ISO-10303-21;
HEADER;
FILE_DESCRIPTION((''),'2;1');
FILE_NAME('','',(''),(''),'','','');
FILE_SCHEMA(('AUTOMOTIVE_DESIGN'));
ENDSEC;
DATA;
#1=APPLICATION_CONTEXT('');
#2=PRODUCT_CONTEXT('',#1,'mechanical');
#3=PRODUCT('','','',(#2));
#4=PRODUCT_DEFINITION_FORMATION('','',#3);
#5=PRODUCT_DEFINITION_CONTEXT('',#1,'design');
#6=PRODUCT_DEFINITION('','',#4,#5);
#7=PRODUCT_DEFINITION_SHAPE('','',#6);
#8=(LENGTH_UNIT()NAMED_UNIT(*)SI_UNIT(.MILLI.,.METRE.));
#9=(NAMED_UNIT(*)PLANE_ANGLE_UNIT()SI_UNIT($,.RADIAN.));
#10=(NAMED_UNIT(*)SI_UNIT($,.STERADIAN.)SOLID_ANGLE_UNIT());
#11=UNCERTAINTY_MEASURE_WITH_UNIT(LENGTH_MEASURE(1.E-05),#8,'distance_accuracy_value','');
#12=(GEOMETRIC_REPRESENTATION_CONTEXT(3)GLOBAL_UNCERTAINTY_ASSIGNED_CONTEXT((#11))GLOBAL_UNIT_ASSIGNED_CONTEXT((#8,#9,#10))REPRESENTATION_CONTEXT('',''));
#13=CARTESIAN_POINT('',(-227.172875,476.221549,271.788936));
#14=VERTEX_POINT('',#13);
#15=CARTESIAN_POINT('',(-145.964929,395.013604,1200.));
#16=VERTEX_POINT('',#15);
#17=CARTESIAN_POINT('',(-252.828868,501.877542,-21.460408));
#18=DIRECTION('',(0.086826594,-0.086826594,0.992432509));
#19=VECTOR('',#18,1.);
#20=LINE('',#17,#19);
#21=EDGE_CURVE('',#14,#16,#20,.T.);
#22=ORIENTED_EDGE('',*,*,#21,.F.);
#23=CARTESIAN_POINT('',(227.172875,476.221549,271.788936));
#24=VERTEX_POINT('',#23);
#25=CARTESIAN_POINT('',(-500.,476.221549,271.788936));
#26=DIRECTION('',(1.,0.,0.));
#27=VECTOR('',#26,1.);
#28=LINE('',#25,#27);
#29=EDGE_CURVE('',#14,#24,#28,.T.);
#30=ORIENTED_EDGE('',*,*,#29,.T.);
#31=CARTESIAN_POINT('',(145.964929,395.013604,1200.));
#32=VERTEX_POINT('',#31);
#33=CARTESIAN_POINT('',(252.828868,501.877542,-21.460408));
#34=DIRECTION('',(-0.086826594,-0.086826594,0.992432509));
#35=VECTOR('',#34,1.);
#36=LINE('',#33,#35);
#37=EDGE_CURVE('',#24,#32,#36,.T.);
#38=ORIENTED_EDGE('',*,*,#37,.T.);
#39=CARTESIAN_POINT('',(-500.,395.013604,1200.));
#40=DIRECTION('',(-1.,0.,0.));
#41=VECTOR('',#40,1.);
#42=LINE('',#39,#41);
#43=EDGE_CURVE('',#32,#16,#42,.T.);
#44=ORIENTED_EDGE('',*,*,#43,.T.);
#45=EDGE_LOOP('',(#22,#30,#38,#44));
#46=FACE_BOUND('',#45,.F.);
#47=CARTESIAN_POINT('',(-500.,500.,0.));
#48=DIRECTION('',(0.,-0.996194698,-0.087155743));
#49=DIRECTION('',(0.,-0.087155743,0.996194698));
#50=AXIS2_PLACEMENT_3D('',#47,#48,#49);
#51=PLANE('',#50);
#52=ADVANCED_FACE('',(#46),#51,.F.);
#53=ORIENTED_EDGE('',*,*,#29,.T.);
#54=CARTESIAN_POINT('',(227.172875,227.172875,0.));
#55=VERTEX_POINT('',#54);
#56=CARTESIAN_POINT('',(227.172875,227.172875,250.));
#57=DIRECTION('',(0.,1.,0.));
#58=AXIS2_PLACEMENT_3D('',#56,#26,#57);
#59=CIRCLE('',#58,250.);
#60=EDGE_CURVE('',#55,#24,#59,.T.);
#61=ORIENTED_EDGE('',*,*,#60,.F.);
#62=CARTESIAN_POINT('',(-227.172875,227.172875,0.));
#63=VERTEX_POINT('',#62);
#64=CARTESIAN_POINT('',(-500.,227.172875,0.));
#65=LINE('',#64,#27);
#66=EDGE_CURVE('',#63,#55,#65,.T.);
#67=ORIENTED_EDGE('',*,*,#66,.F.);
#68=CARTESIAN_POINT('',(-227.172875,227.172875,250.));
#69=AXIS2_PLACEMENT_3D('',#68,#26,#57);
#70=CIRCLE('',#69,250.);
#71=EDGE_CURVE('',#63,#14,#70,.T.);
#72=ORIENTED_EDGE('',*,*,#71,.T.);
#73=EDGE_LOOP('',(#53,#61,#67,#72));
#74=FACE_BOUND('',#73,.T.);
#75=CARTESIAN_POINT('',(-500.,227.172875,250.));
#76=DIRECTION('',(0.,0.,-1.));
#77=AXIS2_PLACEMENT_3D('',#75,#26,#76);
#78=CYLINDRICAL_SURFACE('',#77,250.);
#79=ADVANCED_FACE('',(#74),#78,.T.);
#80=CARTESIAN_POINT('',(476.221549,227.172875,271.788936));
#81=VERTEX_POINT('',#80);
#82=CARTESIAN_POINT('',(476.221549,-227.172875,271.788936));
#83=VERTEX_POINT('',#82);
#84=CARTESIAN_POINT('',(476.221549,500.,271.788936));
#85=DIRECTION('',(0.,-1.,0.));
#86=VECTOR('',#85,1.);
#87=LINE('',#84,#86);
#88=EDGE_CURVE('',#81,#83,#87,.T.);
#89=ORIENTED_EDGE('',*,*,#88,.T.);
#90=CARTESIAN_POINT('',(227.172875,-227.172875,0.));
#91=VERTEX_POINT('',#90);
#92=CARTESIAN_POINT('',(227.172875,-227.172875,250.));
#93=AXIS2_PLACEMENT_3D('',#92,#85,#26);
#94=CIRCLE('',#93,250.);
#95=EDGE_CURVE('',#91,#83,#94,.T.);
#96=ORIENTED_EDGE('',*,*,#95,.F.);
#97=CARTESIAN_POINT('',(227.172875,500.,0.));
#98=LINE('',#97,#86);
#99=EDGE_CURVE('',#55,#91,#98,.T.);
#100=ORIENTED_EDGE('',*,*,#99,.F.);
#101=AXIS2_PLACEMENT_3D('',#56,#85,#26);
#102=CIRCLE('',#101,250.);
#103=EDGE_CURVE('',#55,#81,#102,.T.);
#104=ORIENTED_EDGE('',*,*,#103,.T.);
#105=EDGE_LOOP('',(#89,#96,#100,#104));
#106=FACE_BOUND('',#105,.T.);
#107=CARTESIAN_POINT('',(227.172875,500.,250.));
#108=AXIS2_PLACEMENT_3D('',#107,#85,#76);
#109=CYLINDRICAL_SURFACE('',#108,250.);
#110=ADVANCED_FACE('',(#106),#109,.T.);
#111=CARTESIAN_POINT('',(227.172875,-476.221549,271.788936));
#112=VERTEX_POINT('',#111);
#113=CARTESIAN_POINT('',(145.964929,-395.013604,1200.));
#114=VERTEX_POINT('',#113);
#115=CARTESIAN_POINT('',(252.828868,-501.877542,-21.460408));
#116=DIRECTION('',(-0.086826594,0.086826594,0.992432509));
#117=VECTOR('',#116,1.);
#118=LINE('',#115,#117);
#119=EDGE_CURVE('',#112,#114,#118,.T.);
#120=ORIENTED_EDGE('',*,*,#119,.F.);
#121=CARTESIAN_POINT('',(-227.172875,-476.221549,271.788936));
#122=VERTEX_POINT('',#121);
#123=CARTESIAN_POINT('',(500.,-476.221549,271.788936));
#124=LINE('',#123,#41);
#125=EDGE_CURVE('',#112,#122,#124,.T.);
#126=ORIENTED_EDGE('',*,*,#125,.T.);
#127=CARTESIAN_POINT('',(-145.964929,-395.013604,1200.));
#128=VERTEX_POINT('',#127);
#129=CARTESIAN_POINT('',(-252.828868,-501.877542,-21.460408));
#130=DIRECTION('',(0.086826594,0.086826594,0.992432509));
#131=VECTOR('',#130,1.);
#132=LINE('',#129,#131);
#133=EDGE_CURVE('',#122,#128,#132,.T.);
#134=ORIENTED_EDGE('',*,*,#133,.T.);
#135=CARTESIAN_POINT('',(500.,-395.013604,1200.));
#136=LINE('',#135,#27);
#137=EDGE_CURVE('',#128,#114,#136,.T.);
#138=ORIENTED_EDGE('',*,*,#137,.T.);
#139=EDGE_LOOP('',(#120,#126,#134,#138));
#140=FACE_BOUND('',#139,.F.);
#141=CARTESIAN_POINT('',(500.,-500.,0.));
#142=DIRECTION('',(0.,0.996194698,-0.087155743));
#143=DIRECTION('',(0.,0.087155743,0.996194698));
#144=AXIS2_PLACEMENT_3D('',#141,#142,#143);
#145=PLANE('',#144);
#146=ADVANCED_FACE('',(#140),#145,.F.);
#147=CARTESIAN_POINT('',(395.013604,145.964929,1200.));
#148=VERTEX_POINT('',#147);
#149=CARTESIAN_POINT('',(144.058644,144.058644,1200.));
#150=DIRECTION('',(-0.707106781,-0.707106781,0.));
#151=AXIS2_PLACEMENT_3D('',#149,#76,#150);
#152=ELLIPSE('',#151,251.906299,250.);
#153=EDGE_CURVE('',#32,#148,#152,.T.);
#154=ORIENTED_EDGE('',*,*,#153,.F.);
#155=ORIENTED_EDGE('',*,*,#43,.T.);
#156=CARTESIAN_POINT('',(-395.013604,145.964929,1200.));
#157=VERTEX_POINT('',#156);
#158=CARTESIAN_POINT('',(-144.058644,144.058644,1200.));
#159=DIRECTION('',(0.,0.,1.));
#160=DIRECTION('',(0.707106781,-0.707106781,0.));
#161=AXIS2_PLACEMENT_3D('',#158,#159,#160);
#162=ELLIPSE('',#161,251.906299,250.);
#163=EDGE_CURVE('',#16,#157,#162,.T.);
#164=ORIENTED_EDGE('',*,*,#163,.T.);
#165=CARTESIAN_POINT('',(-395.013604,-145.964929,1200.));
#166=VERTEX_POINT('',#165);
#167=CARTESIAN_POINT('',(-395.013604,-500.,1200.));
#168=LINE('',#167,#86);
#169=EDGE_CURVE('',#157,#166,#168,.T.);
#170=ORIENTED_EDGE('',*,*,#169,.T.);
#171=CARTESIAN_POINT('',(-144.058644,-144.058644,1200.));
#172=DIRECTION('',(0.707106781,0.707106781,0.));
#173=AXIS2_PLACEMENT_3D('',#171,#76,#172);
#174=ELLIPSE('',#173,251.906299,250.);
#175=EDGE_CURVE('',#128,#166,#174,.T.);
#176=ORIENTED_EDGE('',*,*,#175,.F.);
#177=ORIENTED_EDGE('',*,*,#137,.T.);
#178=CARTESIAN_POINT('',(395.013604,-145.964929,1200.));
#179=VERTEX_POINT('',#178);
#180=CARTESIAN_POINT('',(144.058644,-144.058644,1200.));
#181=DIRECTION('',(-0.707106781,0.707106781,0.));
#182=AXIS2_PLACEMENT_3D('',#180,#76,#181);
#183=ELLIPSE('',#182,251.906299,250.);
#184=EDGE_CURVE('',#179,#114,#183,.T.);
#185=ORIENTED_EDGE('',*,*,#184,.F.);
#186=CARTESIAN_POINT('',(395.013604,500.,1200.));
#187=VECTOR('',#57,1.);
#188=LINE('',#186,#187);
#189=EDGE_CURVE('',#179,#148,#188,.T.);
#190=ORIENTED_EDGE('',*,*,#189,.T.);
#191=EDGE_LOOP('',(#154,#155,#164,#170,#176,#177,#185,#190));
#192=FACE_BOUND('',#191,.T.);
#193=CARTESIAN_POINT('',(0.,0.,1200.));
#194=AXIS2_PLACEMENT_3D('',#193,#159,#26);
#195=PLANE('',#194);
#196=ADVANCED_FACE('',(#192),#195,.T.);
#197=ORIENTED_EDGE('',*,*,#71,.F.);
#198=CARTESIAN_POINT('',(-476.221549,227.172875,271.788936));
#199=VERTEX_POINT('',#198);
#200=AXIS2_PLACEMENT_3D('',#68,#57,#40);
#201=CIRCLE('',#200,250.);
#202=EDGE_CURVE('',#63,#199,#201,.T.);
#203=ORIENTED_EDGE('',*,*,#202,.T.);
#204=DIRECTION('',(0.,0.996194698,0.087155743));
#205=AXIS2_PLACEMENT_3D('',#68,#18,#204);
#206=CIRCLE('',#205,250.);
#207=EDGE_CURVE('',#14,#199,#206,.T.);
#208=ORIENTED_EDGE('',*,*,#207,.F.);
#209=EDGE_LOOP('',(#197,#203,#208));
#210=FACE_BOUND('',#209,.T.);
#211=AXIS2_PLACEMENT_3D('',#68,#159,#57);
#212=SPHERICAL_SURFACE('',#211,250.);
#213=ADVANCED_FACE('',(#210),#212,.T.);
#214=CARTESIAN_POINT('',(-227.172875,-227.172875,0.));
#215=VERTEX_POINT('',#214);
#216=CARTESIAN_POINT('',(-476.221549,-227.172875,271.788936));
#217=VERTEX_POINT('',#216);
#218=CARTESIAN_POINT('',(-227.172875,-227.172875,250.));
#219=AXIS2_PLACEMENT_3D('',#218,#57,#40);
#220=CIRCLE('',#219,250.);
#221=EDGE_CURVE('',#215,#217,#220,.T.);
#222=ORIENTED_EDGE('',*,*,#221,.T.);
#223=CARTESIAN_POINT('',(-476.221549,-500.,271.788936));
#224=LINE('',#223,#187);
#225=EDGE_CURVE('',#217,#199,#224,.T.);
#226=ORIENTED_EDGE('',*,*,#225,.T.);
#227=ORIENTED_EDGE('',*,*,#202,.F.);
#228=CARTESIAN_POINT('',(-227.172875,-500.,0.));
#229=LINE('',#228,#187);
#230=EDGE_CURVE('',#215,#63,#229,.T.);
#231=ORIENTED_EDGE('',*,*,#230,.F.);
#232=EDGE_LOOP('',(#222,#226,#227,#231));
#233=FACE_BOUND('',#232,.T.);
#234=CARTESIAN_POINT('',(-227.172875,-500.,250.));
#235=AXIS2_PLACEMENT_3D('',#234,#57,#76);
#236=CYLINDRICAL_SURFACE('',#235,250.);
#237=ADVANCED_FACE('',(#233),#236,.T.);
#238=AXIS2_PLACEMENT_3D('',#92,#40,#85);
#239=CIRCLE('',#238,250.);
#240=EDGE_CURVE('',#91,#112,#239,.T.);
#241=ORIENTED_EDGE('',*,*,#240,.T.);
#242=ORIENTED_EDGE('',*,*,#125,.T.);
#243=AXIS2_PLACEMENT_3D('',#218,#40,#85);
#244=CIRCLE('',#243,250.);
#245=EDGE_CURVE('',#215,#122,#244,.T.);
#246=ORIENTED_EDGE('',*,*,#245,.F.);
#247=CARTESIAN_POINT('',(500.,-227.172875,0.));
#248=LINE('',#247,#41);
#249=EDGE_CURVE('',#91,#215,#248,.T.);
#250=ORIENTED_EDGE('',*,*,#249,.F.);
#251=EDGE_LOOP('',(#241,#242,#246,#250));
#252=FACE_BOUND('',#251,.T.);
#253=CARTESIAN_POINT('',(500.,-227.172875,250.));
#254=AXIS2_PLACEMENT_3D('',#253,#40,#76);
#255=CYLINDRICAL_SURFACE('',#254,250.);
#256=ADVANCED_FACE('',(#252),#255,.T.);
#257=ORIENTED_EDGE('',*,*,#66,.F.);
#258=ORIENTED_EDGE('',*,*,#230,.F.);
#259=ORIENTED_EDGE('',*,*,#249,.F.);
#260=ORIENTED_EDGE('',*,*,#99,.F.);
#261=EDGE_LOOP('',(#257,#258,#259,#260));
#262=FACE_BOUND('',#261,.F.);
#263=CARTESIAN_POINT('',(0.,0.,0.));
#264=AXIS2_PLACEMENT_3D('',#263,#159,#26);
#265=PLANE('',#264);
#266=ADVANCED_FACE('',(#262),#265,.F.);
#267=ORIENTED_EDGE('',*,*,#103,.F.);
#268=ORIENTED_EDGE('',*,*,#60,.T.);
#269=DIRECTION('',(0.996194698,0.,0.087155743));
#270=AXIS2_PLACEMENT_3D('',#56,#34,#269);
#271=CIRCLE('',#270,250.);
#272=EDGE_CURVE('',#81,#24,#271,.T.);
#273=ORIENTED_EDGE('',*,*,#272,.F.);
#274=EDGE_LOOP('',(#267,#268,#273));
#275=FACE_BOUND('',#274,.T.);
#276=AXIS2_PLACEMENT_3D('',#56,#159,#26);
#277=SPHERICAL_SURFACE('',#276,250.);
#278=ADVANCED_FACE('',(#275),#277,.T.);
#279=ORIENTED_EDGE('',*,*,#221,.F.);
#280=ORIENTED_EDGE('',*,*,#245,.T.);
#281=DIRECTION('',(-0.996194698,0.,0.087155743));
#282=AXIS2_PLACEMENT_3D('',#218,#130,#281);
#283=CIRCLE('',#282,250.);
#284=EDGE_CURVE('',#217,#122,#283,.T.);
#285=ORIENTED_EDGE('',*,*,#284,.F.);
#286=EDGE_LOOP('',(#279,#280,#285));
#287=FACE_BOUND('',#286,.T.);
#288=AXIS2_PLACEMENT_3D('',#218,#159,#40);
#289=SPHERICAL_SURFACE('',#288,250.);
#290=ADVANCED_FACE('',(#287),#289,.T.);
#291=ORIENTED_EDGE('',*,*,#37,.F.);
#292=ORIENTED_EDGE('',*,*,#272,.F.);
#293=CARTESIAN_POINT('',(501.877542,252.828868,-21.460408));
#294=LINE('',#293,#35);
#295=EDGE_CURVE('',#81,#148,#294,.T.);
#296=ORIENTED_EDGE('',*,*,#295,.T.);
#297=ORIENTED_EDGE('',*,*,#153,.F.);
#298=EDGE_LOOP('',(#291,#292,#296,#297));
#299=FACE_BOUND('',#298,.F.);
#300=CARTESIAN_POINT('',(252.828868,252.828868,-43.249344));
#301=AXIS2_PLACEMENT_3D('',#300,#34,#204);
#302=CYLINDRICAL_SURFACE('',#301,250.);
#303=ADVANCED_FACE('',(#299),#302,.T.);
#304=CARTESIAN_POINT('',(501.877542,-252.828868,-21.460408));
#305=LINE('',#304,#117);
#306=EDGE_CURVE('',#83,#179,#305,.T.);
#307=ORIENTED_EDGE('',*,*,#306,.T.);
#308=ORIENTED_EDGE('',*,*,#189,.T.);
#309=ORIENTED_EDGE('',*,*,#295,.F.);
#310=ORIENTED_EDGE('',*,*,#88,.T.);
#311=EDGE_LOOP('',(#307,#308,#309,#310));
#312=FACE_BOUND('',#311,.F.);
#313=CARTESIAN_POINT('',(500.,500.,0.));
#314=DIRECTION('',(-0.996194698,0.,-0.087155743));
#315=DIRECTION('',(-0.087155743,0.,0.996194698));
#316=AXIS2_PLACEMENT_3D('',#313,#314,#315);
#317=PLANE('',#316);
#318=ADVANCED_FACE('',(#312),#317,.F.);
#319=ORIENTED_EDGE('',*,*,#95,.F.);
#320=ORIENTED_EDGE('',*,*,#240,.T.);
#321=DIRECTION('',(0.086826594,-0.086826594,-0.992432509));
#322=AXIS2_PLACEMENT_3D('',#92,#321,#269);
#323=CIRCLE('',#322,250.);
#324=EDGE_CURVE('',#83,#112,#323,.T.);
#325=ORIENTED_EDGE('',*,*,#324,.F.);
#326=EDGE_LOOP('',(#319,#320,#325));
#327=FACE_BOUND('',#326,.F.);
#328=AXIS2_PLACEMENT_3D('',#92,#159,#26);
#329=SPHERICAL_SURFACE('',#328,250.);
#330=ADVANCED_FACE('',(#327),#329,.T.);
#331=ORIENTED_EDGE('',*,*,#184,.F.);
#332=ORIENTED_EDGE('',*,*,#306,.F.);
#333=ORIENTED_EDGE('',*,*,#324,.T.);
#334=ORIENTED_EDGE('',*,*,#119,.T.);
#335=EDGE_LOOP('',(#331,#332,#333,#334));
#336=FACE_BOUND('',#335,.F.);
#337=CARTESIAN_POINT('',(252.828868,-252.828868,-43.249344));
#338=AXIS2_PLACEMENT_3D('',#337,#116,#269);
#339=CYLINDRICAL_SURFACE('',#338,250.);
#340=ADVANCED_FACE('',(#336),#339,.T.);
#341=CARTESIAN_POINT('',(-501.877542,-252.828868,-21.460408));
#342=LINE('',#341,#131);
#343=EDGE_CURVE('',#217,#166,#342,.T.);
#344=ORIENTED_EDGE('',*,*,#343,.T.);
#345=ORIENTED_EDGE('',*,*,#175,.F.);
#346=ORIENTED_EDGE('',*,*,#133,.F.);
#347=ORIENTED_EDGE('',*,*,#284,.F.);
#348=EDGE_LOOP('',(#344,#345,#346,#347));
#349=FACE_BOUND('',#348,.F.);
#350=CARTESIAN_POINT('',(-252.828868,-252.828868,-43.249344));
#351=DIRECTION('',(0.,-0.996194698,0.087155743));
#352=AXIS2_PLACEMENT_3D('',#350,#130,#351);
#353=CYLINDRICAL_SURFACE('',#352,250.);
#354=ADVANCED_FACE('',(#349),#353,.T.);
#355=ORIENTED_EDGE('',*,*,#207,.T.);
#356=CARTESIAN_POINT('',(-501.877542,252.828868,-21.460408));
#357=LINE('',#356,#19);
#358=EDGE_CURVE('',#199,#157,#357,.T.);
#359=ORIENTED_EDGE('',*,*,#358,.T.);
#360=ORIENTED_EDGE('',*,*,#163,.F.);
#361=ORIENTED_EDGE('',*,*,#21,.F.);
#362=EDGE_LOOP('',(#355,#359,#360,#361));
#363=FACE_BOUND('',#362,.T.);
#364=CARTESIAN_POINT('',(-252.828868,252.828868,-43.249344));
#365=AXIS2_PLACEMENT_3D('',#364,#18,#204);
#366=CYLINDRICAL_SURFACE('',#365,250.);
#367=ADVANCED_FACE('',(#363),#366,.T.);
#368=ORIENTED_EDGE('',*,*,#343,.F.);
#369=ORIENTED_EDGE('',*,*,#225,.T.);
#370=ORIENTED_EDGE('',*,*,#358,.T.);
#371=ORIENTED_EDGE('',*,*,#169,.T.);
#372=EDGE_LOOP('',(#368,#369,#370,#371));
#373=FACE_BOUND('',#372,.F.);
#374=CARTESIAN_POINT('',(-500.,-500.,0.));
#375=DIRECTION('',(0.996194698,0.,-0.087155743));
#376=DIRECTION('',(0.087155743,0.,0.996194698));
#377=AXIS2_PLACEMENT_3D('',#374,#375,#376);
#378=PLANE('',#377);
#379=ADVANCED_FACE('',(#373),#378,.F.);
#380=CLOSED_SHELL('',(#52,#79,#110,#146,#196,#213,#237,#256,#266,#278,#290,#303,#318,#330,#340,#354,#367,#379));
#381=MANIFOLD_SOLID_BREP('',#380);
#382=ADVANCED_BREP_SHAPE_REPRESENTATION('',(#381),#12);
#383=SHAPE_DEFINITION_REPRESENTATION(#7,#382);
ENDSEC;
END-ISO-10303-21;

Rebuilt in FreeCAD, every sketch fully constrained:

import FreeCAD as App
import Part
import Sketcher
from FreeCAD import Vector


def edges_at(feature, points):
    """Names of the edges that pass closest to the given points."""
    edges = feature.Shape.Edges
    near = lambda p: min(range(len(edges)), key=lambda i: edges[i].distToShape(Part.Vertex(*p))[0])
    return sorted({f"Edge{near(p) + 1}" for p in points})


def add_polygon(sketch, points):
    """Adds a closed chain of lines whose ends are joined by coincident constraints."""
    first, n = sketch.GeometryCount, len(points)
    for a, b in zip(points, points[1:] + points[:1]):
        sketch.addGeometry(Part.LineSegment(App.Vector(*a, 0), App.Vector(*b, 0)), False)
    for i in range(n):
        sketch.addConstraint(Sketcher.Constraint("Coincident", first + i, 2, first + (i + 1) % n, 1))

doc = App.newDocument("Part")
params = doc.addObject("Spreadsheet::Sheet", "Params")
for row, (alias, value) in enumerate([
    ("sketch1_width", "1000 mm"),
    ("pad1_length", "1200 mm"),
    ("pad1_taper", "-5 deg"),
    ("fillet_radius", "250 mm"),
], start=1):
    params.set(f"A{row}", alias)
    params.set(f"B{row}", "=" + value)
    params.setAlias(f"B{row}", alias)

body = doc.addObject("PartDesign::Body", "Body")

sketch1 = body.newObject("Sketcher::SketchObject", "Sketch")
sketch1.AttachmentSupport = (doc.getObject("XY_Plane"), [""])
sketch1.MapMode = "FlatFace"
add_polygon(sketch1, [(500, 500), (-500, 500), (-500, -500), (500, -500)])
sketch1.addConstraint([
    Sketcher.Constraint("Horizontal", 0),
    Sketcher.Constraint("Vertical", 1),
    Sketcher.Constraint("Horizontal", 2),
    Sketcher.Constraint("Vertical", 3),
    Sketcher.Constraint("Symmetric", 0, 2, 2, 2, -1, 1),
    Sketcher.Constraint("Equal", 2, 1),
    Sketcher.Constraint("DistanceX", 0, 2, 0, 1, 1000.0),
])
sketch1.setExpression("Constraints[10]", "Params.sketch1_width")
pad1 = body.newObject("PartDesign::Pad", "Pad")
pad1.Profile = sketch1
pad1.setExpression("Length", "Params.pad1_length")
pad1.setExpression("TaperAngle", "Params.pad1_taper")
doc.recompute()

fillet = body.newObject("PartDesign::Fillet", "Fillet")
fillet.Base = (pad1, edges_at(pad1, [
    (447.507, 447.507, 600),
    (-447.507, 447.507, 600),
    (447.507, -447.507, 600),
    (-447.507, -447.507, 600),
    (500, 0, 0),
    (0, 500, 0),
    (-500, 0, 0),
    (0, -500, 0),
]))
fillet.setExpression("Radius", "Params.fillet_radius")

doc.recompute()
